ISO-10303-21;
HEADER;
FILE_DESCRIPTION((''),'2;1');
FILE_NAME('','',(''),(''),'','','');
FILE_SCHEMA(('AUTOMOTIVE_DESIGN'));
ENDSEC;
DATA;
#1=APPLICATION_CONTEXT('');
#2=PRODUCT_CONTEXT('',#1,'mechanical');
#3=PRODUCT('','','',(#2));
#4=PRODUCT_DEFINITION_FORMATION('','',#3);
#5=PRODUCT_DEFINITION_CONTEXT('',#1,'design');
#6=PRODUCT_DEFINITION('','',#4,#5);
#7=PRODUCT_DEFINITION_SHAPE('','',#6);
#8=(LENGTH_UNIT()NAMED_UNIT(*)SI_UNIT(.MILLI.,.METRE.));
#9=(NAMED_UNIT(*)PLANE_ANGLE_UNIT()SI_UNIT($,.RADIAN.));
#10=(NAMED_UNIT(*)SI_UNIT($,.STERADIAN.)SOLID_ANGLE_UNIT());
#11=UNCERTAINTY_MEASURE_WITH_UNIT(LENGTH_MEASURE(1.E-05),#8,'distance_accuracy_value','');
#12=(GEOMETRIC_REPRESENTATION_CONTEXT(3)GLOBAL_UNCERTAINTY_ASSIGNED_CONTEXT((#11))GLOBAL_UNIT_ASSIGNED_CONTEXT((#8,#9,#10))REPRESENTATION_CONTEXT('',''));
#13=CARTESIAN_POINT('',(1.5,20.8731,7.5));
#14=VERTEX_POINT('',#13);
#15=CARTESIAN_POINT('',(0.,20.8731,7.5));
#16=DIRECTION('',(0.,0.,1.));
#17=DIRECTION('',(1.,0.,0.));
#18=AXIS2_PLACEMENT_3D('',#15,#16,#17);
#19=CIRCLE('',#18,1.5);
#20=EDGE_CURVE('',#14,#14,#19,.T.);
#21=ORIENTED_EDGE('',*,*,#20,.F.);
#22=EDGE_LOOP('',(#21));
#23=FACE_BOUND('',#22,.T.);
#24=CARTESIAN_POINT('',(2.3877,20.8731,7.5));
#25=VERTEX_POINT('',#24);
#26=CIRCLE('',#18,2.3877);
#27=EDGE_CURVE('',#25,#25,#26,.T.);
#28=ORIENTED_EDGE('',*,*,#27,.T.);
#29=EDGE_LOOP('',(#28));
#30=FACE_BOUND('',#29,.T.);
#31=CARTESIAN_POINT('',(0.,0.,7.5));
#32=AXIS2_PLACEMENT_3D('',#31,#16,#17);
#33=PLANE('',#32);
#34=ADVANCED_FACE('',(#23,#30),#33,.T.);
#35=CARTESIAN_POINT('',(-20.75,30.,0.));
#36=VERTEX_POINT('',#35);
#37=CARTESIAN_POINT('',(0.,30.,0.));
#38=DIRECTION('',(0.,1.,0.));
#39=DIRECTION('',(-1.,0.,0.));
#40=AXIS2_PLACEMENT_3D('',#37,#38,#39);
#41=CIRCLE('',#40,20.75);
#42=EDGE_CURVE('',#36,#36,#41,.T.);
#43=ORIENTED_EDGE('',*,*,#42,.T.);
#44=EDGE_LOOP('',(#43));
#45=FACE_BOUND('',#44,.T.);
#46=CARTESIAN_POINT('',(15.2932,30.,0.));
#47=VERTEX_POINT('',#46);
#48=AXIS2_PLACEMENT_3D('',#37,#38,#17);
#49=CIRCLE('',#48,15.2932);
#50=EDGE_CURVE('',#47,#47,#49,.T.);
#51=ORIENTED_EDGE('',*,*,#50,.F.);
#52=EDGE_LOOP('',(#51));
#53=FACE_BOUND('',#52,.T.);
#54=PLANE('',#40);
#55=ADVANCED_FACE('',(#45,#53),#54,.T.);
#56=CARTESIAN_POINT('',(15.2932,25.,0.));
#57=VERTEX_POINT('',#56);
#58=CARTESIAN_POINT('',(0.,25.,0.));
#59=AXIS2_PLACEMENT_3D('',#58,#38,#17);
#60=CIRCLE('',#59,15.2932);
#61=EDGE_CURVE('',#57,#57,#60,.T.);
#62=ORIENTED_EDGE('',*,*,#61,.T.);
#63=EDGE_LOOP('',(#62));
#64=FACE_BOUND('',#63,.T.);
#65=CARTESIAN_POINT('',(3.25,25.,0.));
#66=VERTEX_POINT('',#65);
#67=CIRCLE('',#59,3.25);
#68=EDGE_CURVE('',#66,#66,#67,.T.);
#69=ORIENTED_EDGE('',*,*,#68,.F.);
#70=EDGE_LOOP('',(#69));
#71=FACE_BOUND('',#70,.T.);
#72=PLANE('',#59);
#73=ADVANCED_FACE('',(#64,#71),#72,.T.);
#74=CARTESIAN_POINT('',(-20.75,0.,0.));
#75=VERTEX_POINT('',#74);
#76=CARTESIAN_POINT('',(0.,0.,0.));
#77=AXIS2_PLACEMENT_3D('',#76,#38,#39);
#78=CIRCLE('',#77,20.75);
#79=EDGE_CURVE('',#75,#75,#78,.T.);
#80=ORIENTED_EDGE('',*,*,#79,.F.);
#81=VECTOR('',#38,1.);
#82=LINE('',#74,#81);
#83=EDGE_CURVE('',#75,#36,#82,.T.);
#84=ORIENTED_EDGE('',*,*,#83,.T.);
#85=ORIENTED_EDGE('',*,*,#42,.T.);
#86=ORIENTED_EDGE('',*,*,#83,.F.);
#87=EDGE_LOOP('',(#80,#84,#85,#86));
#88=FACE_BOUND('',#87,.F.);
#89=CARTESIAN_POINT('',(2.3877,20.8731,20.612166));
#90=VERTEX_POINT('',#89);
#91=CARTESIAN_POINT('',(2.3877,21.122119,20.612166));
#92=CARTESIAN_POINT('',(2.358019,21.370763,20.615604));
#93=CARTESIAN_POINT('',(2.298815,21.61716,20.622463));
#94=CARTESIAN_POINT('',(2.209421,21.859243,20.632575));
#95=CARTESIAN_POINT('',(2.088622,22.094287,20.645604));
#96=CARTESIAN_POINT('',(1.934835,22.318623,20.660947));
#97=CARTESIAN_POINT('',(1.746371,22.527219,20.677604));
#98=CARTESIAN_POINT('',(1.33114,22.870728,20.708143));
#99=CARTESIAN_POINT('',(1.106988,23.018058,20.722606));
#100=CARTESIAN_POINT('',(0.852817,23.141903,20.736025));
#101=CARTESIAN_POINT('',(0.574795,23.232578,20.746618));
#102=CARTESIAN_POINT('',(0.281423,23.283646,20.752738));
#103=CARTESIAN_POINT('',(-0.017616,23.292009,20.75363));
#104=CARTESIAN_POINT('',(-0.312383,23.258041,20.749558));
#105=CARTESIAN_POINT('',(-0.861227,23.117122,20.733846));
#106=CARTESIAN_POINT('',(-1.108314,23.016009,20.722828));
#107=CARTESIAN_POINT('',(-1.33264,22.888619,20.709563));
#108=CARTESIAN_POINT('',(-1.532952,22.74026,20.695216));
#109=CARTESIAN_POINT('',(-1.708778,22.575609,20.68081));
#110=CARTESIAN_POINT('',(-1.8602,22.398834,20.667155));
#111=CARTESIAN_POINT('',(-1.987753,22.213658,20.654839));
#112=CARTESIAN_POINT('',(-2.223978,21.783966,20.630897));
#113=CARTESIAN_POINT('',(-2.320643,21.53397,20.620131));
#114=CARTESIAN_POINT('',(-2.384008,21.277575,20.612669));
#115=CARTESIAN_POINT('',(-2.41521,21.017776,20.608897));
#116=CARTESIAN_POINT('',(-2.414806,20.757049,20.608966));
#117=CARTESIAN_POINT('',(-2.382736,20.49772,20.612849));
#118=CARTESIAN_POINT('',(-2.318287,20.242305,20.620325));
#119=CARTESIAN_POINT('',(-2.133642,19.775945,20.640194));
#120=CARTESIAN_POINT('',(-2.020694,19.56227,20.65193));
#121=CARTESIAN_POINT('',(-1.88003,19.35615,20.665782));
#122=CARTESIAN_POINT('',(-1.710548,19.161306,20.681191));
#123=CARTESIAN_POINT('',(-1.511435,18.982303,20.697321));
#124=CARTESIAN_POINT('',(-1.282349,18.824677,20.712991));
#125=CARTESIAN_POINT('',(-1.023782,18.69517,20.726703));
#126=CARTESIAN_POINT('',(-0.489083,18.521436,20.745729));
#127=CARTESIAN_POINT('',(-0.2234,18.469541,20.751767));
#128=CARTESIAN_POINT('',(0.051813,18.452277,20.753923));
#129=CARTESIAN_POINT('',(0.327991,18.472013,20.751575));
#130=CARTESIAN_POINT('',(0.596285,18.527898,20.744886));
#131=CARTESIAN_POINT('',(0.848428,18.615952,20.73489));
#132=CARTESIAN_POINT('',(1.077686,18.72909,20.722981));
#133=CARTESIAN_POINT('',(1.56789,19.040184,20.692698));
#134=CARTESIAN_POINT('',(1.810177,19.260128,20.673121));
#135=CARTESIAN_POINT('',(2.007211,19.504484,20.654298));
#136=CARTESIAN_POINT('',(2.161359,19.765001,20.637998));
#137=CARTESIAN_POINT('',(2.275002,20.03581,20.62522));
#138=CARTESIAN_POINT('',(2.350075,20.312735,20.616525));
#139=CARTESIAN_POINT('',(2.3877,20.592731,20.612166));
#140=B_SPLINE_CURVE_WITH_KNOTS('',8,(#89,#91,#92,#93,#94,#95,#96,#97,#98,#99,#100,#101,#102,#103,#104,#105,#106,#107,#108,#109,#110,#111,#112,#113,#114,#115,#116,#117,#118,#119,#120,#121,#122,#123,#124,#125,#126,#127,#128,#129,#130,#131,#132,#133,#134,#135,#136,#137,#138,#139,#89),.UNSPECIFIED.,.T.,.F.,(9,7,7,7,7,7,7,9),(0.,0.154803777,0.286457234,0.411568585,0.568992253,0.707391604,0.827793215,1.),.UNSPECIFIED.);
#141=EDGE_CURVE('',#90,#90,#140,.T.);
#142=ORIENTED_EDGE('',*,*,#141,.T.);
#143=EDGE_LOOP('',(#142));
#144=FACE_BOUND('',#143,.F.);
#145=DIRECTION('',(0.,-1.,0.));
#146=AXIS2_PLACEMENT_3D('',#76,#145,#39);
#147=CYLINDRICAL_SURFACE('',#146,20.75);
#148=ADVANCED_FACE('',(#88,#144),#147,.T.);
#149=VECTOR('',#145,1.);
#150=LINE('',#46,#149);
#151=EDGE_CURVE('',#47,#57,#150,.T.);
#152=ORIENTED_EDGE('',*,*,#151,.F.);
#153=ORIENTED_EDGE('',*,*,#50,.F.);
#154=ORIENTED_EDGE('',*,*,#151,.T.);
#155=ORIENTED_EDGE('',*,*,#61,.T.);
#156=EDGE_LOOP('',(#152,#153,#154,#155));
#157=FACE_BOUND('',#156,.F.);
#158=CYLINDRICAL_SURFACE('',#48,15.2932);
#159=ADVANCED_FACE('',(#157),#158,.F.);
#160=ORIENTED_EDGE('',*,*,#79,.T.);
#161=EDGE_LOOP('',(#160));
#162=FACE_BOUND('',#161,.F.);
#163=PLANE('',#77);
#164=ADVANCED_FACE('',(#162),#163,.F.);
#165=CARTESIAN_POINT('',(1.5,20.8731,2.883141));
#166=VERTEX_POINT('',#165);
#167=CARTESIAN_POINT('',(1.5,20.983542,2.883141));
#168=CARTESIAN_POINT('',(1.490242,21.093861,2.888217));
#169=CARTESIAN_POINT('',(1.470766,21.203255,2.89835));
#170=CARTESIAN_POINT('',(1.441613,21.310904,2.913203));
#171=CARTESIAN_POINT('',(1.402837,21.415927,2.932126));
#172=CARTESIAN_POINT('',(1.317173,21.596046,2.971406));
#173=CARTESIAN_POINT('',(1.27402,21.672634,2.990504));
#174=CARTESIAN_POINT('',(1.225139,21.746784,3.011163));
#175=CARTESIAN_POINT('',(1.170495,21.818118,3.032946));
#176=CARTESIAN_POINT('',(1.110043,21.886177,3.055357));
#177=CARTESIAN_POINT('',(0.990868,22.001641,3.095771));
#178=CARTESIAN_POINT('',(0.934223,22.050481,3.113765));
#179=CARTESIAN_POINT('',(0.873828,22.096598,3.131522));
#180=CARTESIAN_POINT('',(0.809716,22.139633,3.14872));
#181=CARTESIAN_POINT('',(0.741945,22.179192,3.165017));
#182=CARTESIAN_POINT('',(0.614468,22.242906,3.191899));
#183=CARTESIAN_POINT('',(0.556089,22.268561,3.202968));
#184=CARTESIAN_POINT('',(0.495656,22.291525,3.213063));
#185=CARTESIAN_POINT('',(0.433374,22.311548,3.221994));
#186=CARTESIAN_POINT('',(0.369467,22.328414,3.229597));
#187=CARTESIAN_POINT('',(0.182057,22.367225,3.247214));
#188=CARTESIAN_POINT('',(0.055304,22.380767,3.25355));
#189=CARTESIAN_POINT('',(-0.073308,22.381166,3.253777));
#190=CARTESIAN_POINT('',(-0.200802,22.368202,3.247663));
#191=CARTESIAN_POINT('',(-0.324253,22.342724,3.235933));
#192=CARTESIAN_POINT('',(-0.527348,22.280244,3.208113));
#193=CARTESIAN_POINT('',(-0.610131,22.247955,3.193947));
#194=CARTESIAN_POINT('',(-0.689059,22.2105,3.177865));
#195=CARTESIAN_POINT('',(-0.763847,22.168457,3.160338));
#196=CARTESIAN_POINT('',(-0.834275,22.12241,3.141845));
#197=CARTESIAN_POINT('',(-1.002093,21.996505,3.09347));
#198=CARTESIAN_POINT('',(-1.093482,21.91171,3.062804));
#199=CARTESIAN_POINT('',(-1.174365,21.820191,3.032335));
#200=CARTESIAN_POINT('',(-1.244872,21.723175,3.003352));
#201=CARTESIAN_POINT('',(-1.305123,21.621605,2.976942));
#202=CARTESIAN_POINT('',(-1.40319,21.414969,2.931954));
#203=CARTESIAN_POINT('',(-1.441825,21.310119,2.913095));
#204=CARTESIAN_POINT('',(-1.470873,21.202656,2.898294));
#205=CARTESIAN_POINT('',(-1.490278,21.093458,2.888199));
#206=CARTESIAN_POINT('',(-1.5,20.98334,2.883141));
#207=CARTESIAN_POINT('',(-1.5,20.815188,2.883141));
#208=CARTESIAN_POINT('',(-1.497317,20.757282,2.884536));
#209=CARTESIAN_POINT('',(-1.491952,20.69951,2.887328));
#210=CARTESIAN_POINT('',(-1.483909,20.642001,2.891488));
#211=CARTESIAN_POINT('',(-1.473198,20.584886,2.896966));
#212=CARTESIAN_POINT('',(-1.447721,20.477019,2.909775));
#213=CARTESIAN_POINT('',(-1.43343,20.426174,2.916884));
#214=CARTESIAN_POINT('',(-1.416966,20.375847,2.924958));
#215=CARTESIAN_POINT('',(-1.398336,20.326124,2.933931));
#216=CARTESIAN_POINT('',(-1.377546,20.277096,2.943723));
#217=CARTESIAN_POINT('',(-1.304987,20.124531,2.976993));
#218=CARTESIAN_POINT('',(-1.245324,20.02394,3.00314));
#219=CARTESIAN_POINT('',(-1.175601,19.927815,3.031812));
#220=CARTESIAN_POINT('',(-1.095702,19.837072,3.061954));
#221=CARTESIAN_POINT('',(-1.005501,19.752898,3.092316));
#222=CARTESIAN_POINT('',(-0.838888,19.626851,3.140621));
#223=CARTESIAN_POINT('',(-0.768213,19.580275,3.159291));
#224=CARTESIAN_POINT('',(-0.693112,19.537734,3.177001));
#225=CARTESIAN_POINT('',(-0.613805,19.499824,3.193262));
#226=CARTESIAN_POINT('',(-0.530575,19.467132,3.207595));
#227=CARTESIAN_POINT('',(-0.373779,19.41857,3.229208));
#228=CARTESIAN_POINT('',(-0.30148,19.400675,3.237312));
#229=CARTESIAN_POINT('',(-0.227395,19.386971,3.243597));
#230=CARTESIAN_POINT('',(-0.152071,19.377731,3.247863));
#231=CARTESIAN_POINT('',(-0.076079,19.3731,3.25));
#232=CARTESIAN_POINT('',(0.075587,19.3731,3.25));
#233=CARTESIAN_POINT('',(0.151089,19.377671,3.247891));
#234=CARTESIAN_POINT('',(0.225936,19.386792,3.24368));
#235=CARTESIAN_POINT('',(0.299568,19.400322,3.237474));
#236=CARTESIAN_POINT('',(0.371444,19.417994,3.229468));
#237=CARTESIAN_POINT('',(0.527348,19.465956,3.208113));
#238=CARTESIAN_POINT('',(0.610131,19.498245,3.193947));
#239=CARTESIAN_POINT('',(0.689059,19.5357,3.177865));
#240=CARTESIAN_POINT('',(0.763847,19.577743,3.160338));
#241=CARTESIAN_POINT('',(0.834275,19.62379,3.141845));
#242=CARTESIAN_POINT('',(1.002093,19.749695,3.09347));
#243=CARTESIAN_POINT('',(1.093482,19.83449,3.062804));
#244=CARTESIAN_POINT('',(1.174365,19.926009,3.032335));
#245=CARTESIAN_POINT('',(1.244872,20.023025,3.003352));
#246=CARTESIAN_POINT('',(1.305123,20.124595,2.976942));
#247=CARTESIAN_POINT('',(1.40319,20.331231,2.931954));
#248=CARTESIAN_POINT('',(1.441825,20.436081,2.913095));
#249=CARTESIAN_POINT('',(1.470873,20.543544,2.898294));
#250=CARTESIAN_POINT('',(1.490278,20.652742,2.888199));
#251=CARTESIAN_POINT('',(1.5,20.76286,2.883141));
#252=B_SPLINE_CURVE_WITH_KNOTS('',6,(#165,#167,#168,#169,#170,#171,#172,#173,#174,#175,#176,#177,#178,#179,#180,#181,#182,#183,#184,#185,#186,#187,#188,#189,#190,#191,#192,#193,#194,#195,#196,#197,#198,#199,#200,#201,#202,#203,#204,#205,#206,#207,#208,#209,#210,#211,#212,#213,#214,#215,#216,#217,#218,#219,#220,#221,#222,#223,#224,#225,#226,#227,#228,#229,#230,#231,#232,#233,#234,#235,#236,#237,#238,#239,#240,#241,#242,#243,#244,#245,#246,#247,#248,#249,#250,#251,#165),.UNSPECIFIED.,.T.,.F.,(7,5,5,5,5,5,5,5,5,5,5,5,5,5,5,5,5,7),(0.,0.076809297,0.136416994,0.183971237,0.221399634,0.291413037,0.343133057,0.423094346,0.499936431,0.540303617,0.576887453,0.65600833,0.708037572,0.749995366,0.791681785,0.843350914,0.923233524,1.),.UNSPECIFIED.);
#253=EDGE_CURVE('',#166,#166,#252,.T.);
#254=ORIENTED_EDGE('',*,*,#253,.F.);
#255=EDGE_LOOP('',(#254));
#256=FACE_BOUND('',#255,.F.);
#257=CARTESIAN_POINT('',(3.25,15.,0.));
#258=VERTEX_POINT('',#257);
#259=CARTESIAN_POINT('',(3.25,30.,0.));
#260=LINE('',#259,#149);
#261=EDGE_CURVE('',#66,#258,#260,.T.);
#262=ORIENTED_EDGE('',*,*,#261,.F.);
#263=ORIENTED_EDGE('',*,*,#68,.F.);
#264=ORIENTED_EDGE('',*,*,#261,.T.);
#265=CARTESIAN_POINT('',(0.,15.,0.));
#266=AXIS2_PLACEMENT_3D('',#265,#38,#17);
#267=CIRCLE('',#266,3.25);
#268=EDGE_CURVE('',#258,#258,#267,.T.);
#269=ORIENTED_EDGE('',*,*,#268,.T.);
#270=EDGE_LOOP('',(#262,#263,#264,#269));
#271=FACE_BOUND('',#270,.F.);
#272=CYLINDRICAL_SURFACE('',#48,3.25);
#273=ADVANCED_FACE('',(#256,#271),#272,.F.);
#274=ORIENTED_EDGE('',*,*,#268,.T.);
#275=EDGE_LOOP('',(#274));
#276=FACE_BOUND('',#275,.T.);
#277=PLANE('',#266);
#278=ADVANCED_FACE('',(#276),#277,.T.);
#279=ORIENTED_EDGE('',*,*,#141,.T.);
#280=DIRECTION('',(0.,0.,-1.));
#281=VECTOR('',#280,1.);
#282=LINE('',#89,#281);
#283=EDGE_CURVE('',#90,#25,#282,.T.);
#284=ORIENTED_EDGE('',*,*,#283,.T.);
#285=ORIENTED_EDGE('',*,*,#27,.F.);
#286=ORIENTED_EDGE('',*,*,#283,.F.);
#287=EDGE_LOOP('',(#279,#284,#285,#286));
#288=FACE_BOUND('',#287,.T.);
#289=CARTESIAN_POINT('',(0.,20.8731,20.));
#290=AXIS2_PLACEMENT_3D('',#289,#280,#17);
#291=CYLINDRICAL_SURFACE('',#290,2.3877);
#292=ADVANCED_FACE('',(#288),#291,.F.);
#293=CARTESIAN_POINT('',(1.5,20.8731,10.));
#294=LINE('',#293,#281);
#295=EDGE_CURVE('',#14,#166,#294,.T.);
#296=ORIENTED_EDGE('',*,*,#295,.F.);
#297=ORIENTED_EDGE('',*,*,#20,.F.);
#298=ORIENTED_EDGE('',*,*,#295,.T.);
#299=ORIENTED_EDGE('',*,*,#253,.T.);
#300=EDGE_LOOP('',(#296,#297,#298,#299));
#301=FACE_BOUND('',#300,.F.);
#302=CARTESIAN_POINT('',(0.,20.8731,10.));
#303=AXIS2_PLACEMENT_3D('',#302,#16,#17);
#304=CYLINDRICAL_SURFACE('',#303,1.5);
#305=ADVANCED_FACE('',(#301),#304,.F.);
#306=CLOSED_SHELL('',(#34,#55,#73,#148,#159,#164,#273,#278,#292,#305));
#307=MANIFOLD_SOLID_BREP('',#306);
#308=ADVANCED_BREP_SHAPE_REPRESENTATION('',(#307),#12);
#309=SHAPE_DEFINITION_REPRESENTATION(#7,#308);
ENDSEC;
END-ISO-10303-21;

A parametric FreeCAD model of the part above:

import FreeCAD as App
import Part
import Sketcher
from FreeCAD import Vector

doc = App.newDocument("Part")
body = doc.addObject("PartDesign::Body", "Body")

# Sketch on XZ plane
sketch1 = doc.addObject("Sketcher::SketchObject", "Sketch")
body.addObject(sketch1)
sketch1.AttachmentSupport = (doc.XZ_Plane, [""])
sketch1.MapMode = "FlatFace"
sketch1.addGeometry(Part.Circle(Vector(0, 0, 0), Vector(0, 0, 1), 21), False)
sketch1.addConstraint(Sketcher.Constraint("Coincident", 0, 3, -1, 1))
sketch1.addConstraint(Sketcher.Constraint("Diameter", 0, 41.5))
pad1 = doc.addObject("PartDesign::Pad", "Pad")
body.addObject(pad1)
pad1.Profile = sketch1
pad1.Length = 30
pad1.Reversed = True

# Sketch on XZ plane
sketch2 = doc.addObject("Sketcher::SketchObject", "Sketch001")
body.addObject(sketch2)
sketch2.AttachmentSupport = (doc.XZ_Plane, [""])
sketch2.MapMode = "FlatFace"
sketch2.AttachmentOffset = App.Placement(Vector(0, 0, -30), App.Rotation())
sketch2.addGeometry(Part.Circle(Vector(0, 0, 0), Vector(0, 0, 1), 3.2), False)
sketch2.addConstraint(Sketcher.Constraint("Coincident", 0, 3, -1, 1))
sketch2.addConstraint(Sketcher.Constraint("Diameter", 0, 6.5))
pocket1 = doc.addObject("PartDesign::Pocket", "Pocket")
body.addObject(pocket1)
pocket1.Profile = sketch2
pocket1.Length = 15
pocket1.Reversed = True

# Sketch on XZ plane
sketch3 = doc.addObject("Sketcher::SketchObject", "Sketch002")
body.addObject(sketch3)
sketch3.AttachmentSupport = (doc.XZ_Plane, [""])
sketch3.MapMode = "FlatFace"
sketch3.AttachmentOffset = App.Placement(Vector(0, 0, -30), App.Rotation())
sketch3.addGeometry(Part.Circle(Vector(0, 0, 0), Vector(0, 0, 1), 15), False)
sketch3.addConstraint(Sketcher.Constraint("Coincident", 0, 3, -1, 1))
sketch3.addConstraint(Sketcher.Constraint("Diameter", 0, 30.5864))
pocket2 = doc.addObject("PartDesign::Pocket", "Pocket001")
body.addObject(pocket2)
pocket2.Profile = sketch3
pocket2.Length = 5
pocket2.Reversed = True

# Sketch on XY plane
sketch4 = doc.addObject("Sketcher::SketchObject", "Sketch003")
body.addObject(sketch4)
sketch4.AttachmentSupport = (doc.XY_Plane, [""])
sketch4.MapMode = "FlatFace"
sketch4.AttachmentOffset = App.Placement(Vector(0, 0, 10), App.Rotation())
sketch4.addGeometry(Part.Circle(Vector(0, 20.9, 0), Vector(0, 0, 1), 1.5), False)
sketch4.addConstraint(Sketcher.Constraint("PointOnObject", 0, 3, -2))
sketch4.addConstraint(Sketcher.Constraint("Diameter", 0, 3.0))
sketch4.addConstraint(Sketcher.Constraint("DistanceY", -1, 1, 0, 3, 20.873))
pocket3 = doc.addObject("PartDesign::Pocket", "Pocket002")
body.addObject(pocket3)
pocket3.Profile = sketch4
pocket3.Length = 25
pocket3.Midplane = True

# Sketch on XY plane
sketch5 = doc.addObject("Sketcher::SketchObject", "Sketch004")
body.addObject(sketch5)
sketch5.AttachmentSupport = (doc.XY_Plane, [""])
sketch5.MapMode = "FlatFace"
sketch5.AttachmentOffset = App.Placement(Vector(0, 0, 20), App.Rotation())
sketch5.addGeometry(Part.Circle(Vector(0, 20.9, 0), Vector(0, 0, 1), 2.4), False)
sketch5.addConstraint(Sketcher.Constraint("PointOnObject", 0, 3, -2))
sketch5.addConstraint(Sketcher.Constraint("Diameter", 0, 4.7754))
sketch5.addConstraint(Sketcher.Constraint("DistanceY", -1, 1, 0, 3, 20.873))
pocket4 = doc.addObject("PartDesign::Pocket", "Pocket003")
body.addObject(pocket4)
pocket4.Profile = sketch5
pocket4.Length = 25
pocket4.Midplane = True

doc.recompute()
